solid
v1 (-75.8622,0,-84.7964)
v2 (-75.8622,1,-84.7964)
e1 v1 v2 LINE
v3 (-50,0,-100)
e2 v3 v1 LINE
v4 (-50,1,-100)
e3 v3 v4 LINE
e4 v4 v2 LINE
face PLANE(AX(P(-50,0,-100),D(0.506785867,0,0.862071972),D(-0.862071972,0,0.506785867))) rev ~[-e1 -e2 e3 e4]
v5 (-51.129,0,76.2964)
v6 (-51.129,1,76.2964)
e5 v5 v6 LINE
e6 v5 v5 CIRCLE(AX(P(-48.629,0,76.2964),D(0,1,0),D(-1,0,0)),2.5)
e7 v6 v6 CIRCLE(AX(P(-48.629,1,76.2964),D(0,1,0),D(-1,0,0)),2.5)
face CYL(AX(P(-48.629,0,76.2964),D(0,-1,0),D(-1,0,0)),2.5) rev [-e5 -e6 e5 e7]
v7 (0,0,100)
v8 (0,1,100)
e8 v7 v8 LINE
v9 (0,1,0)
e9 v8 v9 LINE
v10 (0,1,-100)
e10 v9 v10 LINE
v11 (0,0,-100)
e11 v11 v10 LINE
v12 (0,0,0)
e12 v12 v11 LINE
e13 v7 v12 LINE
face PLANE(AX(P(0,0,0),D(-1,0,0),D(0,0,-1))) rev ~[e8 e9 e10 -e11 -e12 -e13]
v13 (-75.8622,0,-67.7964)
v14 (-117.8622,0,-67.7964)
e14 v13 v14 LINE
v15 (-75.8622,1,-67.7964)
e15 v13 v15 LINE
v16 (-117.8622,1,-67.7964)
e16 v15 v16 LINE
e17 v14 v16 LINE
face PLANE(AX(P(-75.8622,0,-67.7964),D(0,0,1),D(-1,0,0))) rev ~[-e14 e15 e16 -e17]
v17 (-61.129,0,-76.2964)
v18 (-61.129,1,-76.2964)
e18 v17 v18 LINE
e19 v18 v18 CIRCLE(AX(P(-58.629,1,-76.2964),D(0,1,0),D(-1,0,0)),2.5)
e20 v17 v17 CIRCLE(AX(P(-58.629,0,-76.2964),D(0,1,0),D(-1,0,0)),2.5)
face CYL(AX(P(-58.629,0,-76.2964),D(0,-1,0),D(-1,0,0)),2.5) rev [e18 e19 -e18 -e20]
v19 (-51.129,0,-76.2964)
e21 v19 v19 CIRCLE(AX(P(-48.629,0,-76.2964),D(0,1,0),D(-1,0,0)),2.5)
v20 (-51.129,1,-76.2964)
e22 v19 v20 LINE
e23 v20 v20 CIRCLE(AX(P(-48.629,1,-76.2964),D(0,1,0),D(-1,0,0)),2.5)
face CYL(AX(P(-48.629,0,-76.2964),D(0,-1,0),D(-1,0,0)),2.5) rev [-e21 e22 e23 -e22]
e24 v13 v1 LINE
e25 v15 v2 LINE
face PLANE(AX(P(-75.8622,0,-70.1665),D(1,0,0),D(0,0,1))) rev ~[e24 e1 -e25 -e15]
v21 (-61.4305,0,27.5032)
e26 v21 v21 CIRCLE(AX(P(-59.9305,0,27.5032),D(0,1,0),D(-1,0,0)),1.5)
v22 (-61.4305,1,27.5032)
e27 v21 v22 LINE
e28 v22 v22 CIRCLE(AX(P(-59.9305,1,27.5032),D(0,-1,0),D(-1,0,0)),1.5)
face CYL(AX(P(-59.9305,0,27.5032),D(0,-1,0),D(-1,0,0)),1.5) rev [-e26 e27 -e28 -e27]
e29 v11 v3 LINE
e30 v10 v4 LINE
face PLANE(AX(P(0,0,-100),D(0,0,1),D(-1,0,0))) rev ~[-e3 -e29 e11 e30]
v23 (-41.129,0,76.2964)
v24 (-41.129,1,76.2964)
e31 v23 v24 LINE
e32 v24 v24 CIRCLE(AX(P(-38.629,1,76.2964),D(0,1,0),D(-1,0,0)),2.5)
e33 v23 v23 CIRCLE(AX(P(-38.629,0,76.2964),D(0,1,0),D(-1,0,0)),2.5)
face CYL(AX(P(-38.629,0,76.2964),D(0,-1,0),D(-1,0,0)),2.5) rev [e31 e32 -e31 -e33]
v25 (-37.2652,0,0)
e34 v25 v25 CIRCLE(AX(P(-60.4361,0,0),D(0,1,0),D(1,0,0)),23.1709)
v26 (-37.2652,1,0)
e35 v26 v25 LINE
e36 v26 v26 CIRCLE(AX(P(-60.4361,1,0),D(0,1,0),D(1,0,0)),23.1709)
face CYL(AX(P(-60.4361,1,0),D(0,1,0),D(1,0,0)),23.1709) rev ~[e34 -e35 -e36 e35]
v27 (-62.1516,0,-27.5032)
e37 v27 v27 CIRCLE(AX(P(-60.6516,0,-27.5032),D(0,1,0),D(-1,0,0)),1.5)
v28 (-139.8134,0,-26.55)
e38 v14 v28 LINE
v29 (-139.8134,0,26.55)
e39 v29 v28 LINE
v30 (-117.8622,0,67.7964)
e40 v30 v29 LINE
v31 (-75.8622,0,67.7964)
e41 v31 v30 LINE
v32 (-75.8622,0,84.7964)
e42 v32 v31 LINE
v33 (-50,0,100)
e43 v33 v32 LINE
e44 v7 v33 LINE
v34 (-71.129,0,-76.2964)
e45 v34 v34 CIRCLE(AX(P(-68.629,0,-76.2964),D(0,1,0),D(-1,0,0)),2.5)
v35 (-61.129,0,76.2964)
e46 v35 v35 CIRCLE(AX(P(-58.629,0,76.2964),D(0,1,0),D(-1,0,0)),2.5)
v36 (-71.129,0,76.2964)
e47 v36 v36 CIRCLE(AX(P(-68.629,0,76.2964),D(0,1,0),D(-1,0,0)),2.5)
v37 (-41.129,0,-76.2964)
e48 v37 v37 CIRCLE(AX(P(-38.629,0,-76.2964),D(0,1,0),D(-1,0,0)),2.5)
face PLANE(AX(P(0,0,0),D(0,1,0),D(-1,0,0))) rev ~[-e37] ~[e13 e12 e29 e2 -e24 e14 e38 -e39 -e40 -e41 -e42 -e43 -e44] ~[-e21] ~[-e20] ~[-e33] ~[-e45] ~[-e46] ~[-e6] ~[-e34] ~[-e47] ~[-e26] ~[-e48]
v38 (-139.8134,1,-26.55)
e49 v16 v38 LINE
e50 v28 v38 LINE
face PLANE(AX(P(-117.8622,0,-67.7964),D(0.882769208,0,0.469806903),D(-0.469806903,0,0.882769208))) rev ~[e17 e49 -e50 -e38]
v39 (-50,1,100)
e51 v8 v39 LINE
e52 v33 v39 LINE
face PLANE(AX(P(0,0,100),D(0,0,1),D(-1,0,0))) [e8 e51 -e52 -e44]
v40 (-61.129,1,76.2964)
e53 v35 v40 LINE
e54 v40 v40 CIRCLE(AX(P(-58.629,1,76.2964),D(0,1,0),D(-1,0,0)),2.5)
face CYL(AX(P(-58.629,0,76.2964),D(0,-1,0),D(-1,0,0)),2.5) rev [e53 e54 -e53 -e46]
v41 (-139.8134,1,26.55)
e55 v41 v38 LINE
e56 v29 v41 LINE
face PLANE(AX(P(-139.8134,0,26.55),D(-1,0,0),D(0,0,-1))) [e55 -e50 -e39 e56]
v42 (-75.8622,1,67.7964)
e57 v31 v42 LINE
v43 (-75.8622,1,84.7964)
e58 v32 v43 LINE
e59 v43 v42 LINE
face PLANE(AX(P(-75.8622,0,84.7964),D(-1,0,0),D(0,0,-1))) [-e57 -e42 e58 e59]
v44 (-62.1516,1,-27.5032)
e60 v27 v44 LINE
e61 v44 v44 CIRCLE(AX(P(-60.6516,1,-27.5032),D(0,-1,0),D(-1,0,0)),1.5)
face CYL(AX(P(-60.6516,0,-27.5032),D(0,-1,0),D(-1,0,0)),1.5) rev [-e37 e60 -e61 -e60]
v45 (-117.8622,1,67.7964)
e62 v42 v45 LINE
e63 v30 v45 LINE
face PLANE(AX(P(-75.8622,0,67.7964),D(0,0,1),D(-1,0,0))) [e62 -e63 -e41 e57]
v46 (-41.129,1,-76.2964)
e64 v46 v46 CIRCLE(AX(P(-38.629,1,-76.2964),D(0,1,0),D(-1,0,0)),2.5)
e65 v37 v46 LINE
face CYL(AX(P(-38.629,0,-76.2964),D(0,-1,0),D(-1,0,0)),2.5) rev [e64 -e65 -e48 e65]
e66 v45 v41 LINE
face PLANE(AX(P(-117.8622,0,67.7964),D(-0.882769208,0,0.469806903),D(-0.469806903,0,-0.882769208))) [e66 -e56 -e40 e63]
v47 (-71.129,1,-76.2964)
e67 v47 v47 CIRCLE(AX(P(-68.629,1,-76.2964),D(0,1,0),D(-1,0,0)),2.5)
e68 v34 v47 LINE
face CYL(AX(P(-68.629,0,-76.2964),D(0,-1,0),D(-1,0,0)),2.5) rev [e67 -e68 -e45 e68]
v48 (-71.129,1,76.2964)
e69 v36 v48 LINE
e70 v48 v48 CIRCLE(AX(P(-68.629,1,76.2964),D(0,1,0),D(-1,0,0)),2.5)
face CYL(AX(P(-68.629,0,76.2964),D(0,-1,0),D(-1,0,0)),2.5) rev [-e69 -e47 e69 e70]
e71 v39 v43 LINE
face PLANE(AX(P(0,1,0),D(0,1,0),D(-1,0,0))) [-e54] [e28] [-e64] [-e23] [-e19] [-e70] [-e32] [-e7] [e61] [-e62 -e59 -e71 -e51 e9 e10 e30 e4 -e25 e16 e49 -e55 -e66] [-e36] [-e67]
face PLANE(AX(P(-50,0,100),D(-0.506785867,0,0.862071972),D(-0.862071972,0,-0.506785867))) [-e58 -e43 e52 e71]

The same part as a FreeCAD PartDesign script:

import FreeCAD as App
import Part
import Sketcher
from FreeCAD import Vector
Q = App.Units.Quantity

doc = App.newDocument("Part")
params = doc.addObject("Spreadsheet::Sheet", "Params")
for row, (alias, value) in enumerate([
    ("sketch1_diameter", "5 mm"),
    ("sketch1_width", "50 mm"),
    ("sketch1_width2", "42 mm"),
    ("sketch1_height", "17 mm"),
    ("sketch1_length", "30 mm"),
    ("pad1_length", "1 mm"),
    ("pocket1_length", "3.75 mm"),
    ("sketch3_diameter", "3 mm"),
    ("pocket2_length", "3.75 mm"),
    ("sketch4_diameter", "3 mm"),
    ("pocket3_length", "3.75 mm"),
], start=1):
    params.set(f"A{row}", alias)
    params.set(f"B{row}", "=" + value)
    params.setAlias(f"B{row}", alias)

body = doc.addObject("PartDesign::Body", "Body")

# Sketch on XZ plane
sketch1 = doc.addObject("Sketcher::SketchObject", "Sketch")
body.addObject(sketch1)
sketch1.AttachmentSupport = (doc.XZ_Plane, [""])
sketch1.MapMode = "FlatFace"
sketch1.addGeometry([
    Part.LineSegment(Vector(-50, 100, 0), Vector(0, 100, 0)),  # 0
    Part.LineSegment(Vector(0, 100, 0), Vector(0, 0, 0)),  # 1
    Part.LineSegment(Vector(0, 0, 0), Vector(0, -100, 0)),  # 2
    Part.LineSegment(Vector(0, -100, 0), Vector(-50, -100, 0)),  # 3
    Part.LineSegment(Vector(-50, -100, 0), Vector(-75.9, -84.8, 0)),  # 4
    Part.LineSegment(Vector(-75.9, -84.8, 0), Vector(-75.9, -67.8, 0)),  # 5
    Part.LineSegment(Vector(-75.9, -67.8, 0), Vector(-117.9, -67.8, 0)),  # 6
    Part.LineSegment(Vector(-117.9, -67.8, 0), Vector(-139.8, -26.6, 0)),  # 7
    Part.LineSegment(Vector(-139.8, -26.6, 0), Vector(-139.8, 26.6, 0)),  # 8
    Part.LineSegment(Vector(-139.8, 26.6, 0), Vector(-117.9, 67.8, 0)),  # 9
    Part.LineSegment(Vector(-117.9, 67.8, 0), Vector(-75.9, 67.8, 0)),  # 10
    Part.LineSegment(Vector(-75.9, 67.8, 0), Vector(-75.9, 84.8, 0)),  # 11
    Part.LineSegment(Vector(-75.9, 84.8, 0), Vector(-50, 100, 0)),  # 12
    Part.Circle(Vector(-38.6, -76.3, 0), Vector(0, 0, 1), 2.5),  # 13
    Part.Circle(Vector(-48.6, -76.3, 0), Vector(0, 0, 1), 2.5),  # 14
    Part.Circle(Vector(-58.6, -76.3, 0), Vector(0, 0, 1), 2.5),  # 15
    Part.Circle(Vector(-68.6, -76.3, 0), Vector(0, 0, 1), 2.5),  # 16
    Part.Circle(Vector(-68.6, 76.3, 0), Vector(0, 0, 1), 2.5),  # 17
    Part.Circle(Vector(-38.6, 76.3, 0), Vector(0, 0, 1), 2.5),  # 18
    Part.Circle(Vector(-48.6, 76.3, 0), Vector(0, 0, 1), 2.5),  # 19
    Part.Circle(Vector(-58.6, 76.3, 0), Vector(0, 0, 1), 2.5),  # 20
], False)
sketch1.addConstraint([
    Sketcher.Constraint("Coincident", 0, 2, 1, 1),
    Sketcher.Constraint("Coincident", 1, 2, 2, 1),
    Sketcher.Constraint("Coincident", 2, 2, 3, 1),
    Sketcher.Constraint("Coincident", 3, 2, 4, 1),
    Sketcher.Constraint("Coincident", 4, 2, 5, 1),
    Sketcher.Constraint("Coincident", 5, 2, 6, 1),
    Sketcher.Constraint("Coincident", 6, 2, 7, 1),
    Sketcher.Constraint("Coincident", 7, 2, 8, 1),
    Sketcher.Constraint("Coincident", 8, 2, 9, 1),
    Sketcher.Constraint("Coincident", 9, 2, 10, 1),
    Sketcher.Constraint("Coincident", 10, 2, 11, 1),
    Sketcher.Constraint("Coincident", 11, 2, 12, 1),
    Sketcher.Constraint("Coincident", 12, 2, 0, 1),
    Sketcher.Constraint("Horizontal", 0),
    Sketcher.Constraint("Vertical", 1),
    Sketcher.Constraint("Vertical", 2),
    Sketcher.Constraint("Horizontal", 3),
    Sketcher.Constraint("Vertical", 5),
    Sketcher.Constraint("Horizontal", 6),
    Sketcher.Constraint("Vertical", 8),
    Sketcher.Constraint("Horizontal", 10),
    Sketcher.Constraint("Vertical", 11),
    Sketcher.Constraint("Coincident", 1, 2, -1, 1),
    Sketcher.Constraint("Equal", 13, 14),
    Sketcher.Constraint("Equal", 14, 15),
    Sketcher.Constraint("Equal", 15, 16),
    Sketcher.Constraint("Equal", 16, 17),
    Sketcher.Constraint("Equal", 17, 18),
    Sketcher.Constraint("Equal", 18, 19),
    Sketcher.Constraint("Equal", 19, 20),
    Sketcher.Constraint("Symmetric", 16, 3, 17, 3, -1),
    Sketcher.Constraint("Symmetric", 13, 3, 18, 3, -1),
    Sketcher.Constraint("Symmetric", 14, 3, 19, 3, -1),
    Sketcher.Constraint("Symmetric", 15, 3, 20, 3, -1),
    Sketcher.Constraint("Symmetric", 6, 2, 9, 2, -1),
    Sketcher.Constraint("Symmetric", 4, 2, 11, 2, -1),
    Sketcher.Constraint("Symmetric", 3, 2, 12, 2, -1),
    Sketcher.Constraint("Horizontal", 13, 3, 14, 3),
    Sketcher.Constraint("Horizontal", 14, 3, 15, 3),
    Sketcher.Constraint("Horizontal", 15, 3, 16, 3),
    Sketcher.Constraint("Equal", 7, 9),
    Sketcher.Constraint("Diameter", 13, Q("5 mm")),
    Sketcher.Constraint("DistanceX", 0, 1, 0, 2, Q("50 mm")),
    Sketcher.Constraint("DistanceX", 6, 2, 6, 1, Q("42 mm")),
    Sketcher.Constraint("DistanceY", 5, 1, 5, 2, Q("17 mm")),
    Sketcher.Constraint("Distance", 4, Q("30 mm")),
    Sketcher.Constraint("DistanceY", 8, 1, 8, 2, Q("53.1 mm")),
    Sketcher.Constraint("DistanceX", 14, 3, 13, 3, Q("10 mm")),
    Sketcher.Constraint("DistanceX", 15, 3, 14, 3, Q("10 mm")),
    Sketcher.Constraint("DistanceX", 16, 3, 15, 3, Q("10 mm")),
    Sketcher.Constraint("Angle", 12, Q("30.45 deg")),
    Sketcher.Constraint("DistanceY", 1, 2, 1, 1, Q("100 mm")),
    Sketcher.Constraint("Distance", 7, Q("46.7239 mm")),
    Sketcher.Constraint("DistanceY", 4, 2, 16, 3, Q("8.5 mm")),
    Sketcher.Constraint("DistanceX", 13, 3, -1, 1, Q("38.629 mm")),
])
sketch1.setExpression("Constraints[41]", "Params.sketch1_diameter")
sketch1.setExpression("Constraints[42]", "Params.sketch1_width")
sketch1.setExpression("Constraints[43]", "Params.sketch1_width2")
sketch1.setExpression("Constraints[44]", "Params.sketch1_height")
sketch1.setExpression("Constraints[45]", "Params.sketch1_length")
pad1 = doc.addObject("PartDesign::Pad", "Pad")
body.addObject(pad1)
pad1.Profile = sketch1
pad1.setExpression("Length", "Params.pad1_length")
pad1.Reversed = True

# Sketch on XZ plane
sketch2 = doc.addObject("Sketcher::SketchObject", "Sketch001")
body.addObject(sketch2)
sketch2.AttachmentSupport = (doc.XZ_Plane, [""])
sketch2.MapMode = "FlatFace"
sketch2.AttachmentOffset = App.Placement(Vector(0, 0, -1), App.Rotation())
sketch2.addGeometry(Part.Circle(Vector(-60, 0, 0), Vector(0, 0, 1), 23), False)
sketch2.addConstraint([
    Sketcher.Constraint("PointOnObject", 0, 3, -1),
    Sketcher.Constraint("Diameter", 0, Q("46.3418 mm")),
    Sketcher.Constraint("DistanceX", 0, 3, -1, 1, Q("60.436 mm")),
])
pocket1 = doc.addObject("PartDesign::Pocket", "Pocket")
body.addObject(pocket1)
pocket1.Profile = sketch2
pocket1.setExpression("Length", "Params.pocket1_length")
pocket1.Reversed = True

# Sketch on XZ plane
sketch3 = doc.addObject("Sketcher::SketchObject", "Sketch002")
body.addObject(sketch3)
sketch3.AttachmentSupport = (doc.XZ_Plane, [""])
sketch3.MapMode = "FlatFace"
sketch3.addGeometry(Part.Circle(Vector(-59.9, 27.5, 0), Vector(0, 0, 1), 1.5), False)
sketch3.addConstraint([
    Sketcher.Constraint("Diameter", 0, Q("3 mm")),
    Sketcher.Constraint("DistanceX", 0, 3, -1, 1, Q("59.9305 mm")),
    Sketcher.Constraint("DistanceY", -1, 1, 0, 3, Q("27.5032 mm")),
])
sketch3.setExpression("Constraints[0]", "Params.sketch3_diameter")
pocket2 = doc.addObject("PartDesign::Pocket", "Pocket001")
body.addObject(pocket2)
pocket2.Profile = sketch3
pocket2.setExpression("Length", "Params.pocket2_length")

# Sketch on XZ plane
sketch4 = doc.addObject("Sketcher::SketchObject", "Sketch003")
body.addObject(sketch4)
sketch4.AttachmentSupport = (doc.XZ_Plane, [""])
sketch4.MapMode = "FlatFace"
sketch4.addGeometry(Part.Circle(Vector(-60.7, -27.5, 0), Vector(0, 0, 1), 1.5), False)
sketch4.addConstraint([
    Sketcher.Constraint("Diameter", 0, Q("3 mm")),
    Sketcher.Constraint("DistanceX", 0, 3, -1, 1, Q("60.6516 mm")),
    Sketcher.Constraint("DistanceY", 0, 3, -1, 1, Q("27.5032 mm")),
])
sketch4.setExpression("Constraints[0]", "Params.sketch4_diameter")
pocket3 = doc.addObject("PartDesign::Pocket", "Pocket002")
body.addObject(pocket3)
pocket3.Profile = sketch4
pocket3.setExpression("Length", "Params.pocket3_length")

doc.recompute()
